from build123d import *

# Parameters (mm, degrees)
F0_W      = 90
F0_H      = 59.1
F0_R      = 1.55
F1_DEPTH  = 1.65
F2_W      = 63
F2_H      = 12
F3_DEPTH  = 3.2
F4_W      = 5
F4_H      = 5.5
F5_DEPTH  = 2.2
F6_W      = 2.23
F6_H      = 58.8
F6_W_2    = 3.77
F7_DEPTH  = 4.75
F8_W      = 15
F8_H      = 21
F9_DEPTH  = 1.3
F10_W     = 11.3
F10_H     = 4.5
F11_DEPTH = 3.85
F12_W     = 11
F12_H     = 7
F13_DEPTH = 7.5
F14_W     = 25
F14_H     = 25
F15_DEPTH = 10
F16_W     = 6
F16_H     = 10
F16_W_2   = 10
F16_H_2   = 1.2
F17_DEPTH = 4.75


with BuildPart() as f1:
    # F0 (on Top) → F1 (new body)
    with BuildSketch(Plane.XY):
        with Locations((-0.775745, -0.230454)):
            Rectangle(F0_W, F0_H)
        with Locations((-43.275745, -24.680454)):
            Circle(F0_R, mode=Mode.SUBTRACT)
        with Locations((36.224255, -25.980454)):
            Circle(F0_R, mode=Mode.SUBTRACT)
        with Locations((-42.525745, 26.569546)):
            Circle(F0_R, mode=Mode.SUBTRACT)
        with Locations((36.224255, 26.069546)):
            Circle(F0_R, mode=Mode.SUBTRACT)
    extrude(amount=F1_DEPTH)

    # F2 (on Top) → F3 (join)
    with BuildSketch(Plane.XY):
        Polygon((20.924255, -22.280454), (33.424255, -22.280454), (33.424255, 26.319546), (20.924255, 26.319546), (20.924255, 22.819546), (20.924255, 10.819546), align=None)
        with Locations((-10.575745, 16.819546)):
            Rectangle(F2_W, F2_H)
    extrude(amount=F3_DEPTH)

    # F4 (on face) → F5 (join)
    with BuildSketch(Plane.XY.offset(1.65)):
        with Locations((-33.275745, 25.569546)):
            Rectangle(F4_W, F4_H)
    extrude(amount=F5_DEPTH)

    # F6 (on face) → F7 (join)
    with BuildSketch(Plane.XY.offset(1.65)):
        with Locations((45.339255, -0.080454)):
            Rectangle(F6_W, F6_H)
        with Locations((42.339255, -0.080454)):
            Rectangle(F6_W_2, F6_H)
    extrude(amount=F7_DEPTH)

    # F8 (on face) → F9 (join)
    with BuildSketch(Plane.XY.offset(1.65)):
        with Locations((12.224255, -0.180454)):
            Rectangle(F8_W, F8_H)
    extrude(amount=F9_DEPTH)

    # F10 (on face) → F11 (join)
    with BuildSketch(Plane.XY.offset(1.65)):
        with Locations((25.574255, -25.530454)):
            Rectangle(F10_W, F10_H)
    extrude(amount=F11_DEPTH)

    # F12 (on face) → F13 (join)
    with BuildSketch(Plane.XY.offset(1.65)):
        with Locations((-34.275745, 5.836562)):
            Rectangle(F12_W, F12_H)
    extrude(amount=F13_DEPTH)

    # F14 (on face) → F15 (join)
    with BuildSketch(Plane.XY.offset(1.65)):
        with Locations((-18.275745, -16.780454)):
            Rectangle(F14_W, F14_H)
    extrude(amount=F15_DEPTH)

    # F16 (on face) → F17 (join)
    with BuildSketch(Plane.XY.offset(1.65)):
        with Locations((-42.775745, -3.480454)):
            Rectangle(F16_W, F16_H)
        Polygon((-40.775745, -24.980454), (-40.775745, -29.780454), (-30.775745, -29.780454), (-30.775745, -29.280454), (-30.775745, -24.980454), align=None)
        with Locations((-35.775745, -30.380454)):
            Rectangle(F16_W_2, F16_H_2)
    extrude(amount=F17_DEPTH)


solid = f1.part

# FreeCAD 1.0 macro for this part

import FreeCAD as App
import Part
import Sketcher

V = App.Vector
Q = App.Units.Quantity

doc = App.newDocument("Part")
params = doc.addObject("Spreadsheet::Sheet", "Params")
for row, (alias, value) in enumerate([
    ("sketch1_diameter", "3.1 mm"),
    ("sketch1_width", "90 mm"),
    ("sketch1_height", "59.1 mm"),
    ("pad1_length", "1.65 mm"),
    ("sketch2_width", "63 mm"),
    ("sketch2_height", "12 mm"),
    ("sketch2_width2", "12.5 mm"),
    ("sketch2_height2", "48.6 mm"),
    ("sketch2_height3", "3.5 mm"),
    ("pad2_length", "3.2 mm"),
    ("sketch3_width", "5 mm"),
    ("sketch3_height", "5.5 mm"),
    ("pad3_length", "2.2 mm"),
    ("sketch4_width", "6 mm"),
    ("sketch4_height", "58.8 mm"),
    ("pad4_length", "4.75 mm"),
    ("sketch5_width", "15 mm"),
    ("sketch5_height", "21 mm"),
    ("pad5_length", "1.3 mm"),
    ("sketch6_width", "11.3 mm"),
    ("sketch6_height", "4.5 mm"),
    ("pad6_length", "3.85 mm"),
    ("sketch7_width", "11 mm"),
    ("sketch7_height", "7 mm"),
    ("pad7_length", "7.5 mm"),
    ("sketch8_width", "25 mm"),
    ("pad8_length", "10 mm"),
    ("sketch9_width", "6 mm"),
    ("sketch9_width2", "10 mm"),
    ("pad9_length", "4.75 mm"),
], start=1):
    params.set(f"A{row}", alias)
    params.set(f"B{row}", "=" + value)
    params.setAlias(f"B{row}", alias)

body = doc.addObject("PartDesign::Body", "Body")

# Sketch on XY plane
sketch1 = doc.addObject("Sketcher::SketchObject", "Sketch")
body.addObject(sketch1)
sketch1.AttachmentSupport = (doc.XY_Plane, [""])
sketch1.MapMode = "FlatFace"
sketch1.addGeometry(Part.LineSegment(V(-45.8, 29.3, 0), V(-45.8, -29.8, 0)), False)
sketch1.addGeometry(Part.LineSegment(V(-45.8, -29.8, 0), V(44.2, -29.8, 0)), False)
sketch1.addGeometry(Part.LineSegment(V(44.2, -29.8, 0), V(44.2, 29.3, 0)), False)
sketch1.addGeometry(Part.LineSegment(V(44.2, 29.3, 0), V(-45.8, 29.3, 0)), False)
sketch1.addGeometry(Part.Circle(V(-43.3, -24.7, 0), V(0, 0, 1), 1.6), False)
sketch1.addGeometry(Part.Circle(V(36.2, -26, 0), V(0, 0, 1), 1.6), False)
sketch1.addGeometry(Part.Circle(V(-42.5, 26.6, 0), V(0, 0, 1), 1.6), False)
sketch1.addGeometry(Part.Circle(V(36.2, 26.1, 0), V(0, 0, 1), 1.6), False)
sketch1.addConstraint(Sketcher.Constraint("Coincident", 0, 2, 1, 1))
sketch1.addConstraint(Sketcher.Constraint("Coincident", 1, 2, 2, 1))
sketch1.addConstraint(Sketcher.Constraint("Coincident", 2, 2, 3, 1))
sketch1.addConstraint(Sketcher.Constraint("Coincident", 3, 2, 0, 1))
sketch1.addConstraint(Sketcher.Constraint("Vertical", 0))
sketch1.addConstraint(Sketcher.Constraint("Horizontal", 1))
sketch1.addConstraint(Sketcher.Constraint("Vertical", 2))
sketch1.addConstraint(Sketcher.Constraint("Horizontal", 3))
sketch1.addConstraint(Sketcher.Constraint("Equal", 4, 5))
sketch1.addConstraint(Sketcher.Constraint("Equal", 5, 6))
sketch1.addConstraint(Sketcher.Constraint("Equal", 6, 7))
sketch1.addConstraint(Sketcher.Constraint("Vertical", 5, 3, 7, 3))
sketch1.addConstraint(Sketcher.Constraint("Diameter", 4, Q("3.1 mm")))
sketch1.addConstraint(Sketcher.Constraint("DistanceX", 1, 1, 1, 2, Q("90 mm")))
sketch1.addConstraint(Sketcher.Constraint("DistanceY", 0, 2, 0, 1, Q("59.1 mm")))
sketch1.addConstraint(Sketcher.Constraint("DistanceX", 0, 2, 5, 3, Q("82 mm")))
sketch1.addConstraint(Sketcher.Constraint("DistanceY", 4, 3, 2, 2, Q("54 mm")))
sketch1.addConstraint(Sketcher.Constraint("DistanceX", 4, 3, 5, 3, Q("79.5 mm")))
sketch1.addConstraint(Sketcher.Constraint("DistanceY", 5, 3, 4, 3, Q("1.3 mm")))
sketch1.addConstraint(Sketcher.Constraint("DistanceY", 7, 3, 6, 3, Q("0.5 mm")))
sketch1.addConstraint(Sketcher.Constraint("DistanceX", 4, 3, 6, 3, Q("0.75 mm")))
sketch1.addConstraint(Sketcher.Constraint("DistanceY", 4, 3, 6, 3, Q("51.25 mm")))
sketch1.addConstraint(Sketcher.Constraint("DistanceX", 4, 3, -1, 1, Q("43.275745 mm")))
sketch1.addConstraint(Sketcher.Constraint("DistanceY", 4, 3, -1, 1, Q("24.680454 mm")))
sketch1.setExpression("Constraints[12]", "Params.sketch1_diameter")
sketch1.setExpression("Constraints[13]", "Params.sketch1_width")
sketch1.setExpression("Constraints[14]", "Params.sketch1_height")
pad1 = doc.addObject("PartDesign::Pad", "Pad")
body.addObject(pad1)
pad1.Profile = sketch1
pad1.setExpression("Length", "Params.pad1_length")

# Sketch on XY plane
sketch2 = doc.addObject("Sketcher::SketchObject", "Sketch001")
body.addObject(sketch2)
sketch2.AttachmentSupport = (doc.XY_Plane, [""])
sketch2.MapMode = "FlatFace"
sketch2.addGeometry(Part.LineSegment(V(20.9, -22.3, 0), V(33.4, -22.3, 0)), False)
sketch2.addGeometry(Part.LineSegment(V(33.4, -22.3, 0), V(33.4, 26.3, 0)), False)
sketch2.addGeometry(Part.LineSegment(V(33.4, 26.3, 0), V(20.9, 26.3, 0)), False)
sketch2.addGeometry(Part.LineSegment(V(20.9, 26.3, 0), V(20.9, 22.8, 0)), False)
sketch2.addGeometry(Part.LineSegment(V(20.9, 22.8, 0), V(-42.1, 22.8, 0)), False)
sketch2.addGeometry(Part.LineSegment(V(-42.1, 22.8, 0), V(-42.1, 10.8, 0)), False)
sketch2.addGeometry(Part.LineSegment(V(-42.1, 10.8, 0), V(20.9, 10.8, 0)), False)
sketch2.addGeometry(Part.LineSegment(V(20.9, 10.8, 0), V(20.9, -22.3, 0)), False)
sketch2.addConstraint(Sketcher.Constraint("Coincident", 0, 2, 1, 1))
sketch2.addConstraint(Sketcher.Constraint("Coincident", 1, 2, 2, 1))
sketch2.addConstraint(Sketcher.Constraint("Coincident", 2, 2, 3, 1))
sketch2.addConstraint(Sketcher.Constraint("Coincident", 3, 2, 4, 1))
sketch2.addConstraint(Sketcher.Constraint("Coincident", 4, 2, 5, 1))
sketch2.addConstraint(Sketcher.Constraint("Coincident", 5, 2, 6, 1))
sketch2.addConstraint(Sketcher.Constraint("Coincident", 6, 2, 7, 1))
sketch2.addConstraint(Sketcher.Constraint("Coincident", 7, 2, 0, 1))
sketch2.addConstraint(Sketcher.Constraint("Horizontal", 0))
sketch2.addConstraint(Sketcher.Constraint("Vertical", 1))
sketch2.addConstraint(Sketcher.Constraint("Horizontal", 2))
sketch2.addConstraint(Sketcher.Constraint("Vertical", 3))
sketch2.addConstraint(Sketcher.Constraint("Horizontal", 4))
sketch2.addConstraint(Sketcher.Constraint("Vertical", 5))
sketch2.addConstraint(Sketcher.Constraint("Horizontal", 6))
sketch2.addConstraint(Sketcher.Constraint("Vertical", 7))
sketch2.addConstraint(Sketcher.Constraint("Vertical", 3, 2, 6, 2))
sketch2.addConstraint(Sketcher.Constraint("DistanceX", 4, 2, 4, 1, Q("63 mm")))
sketch2.addConstraint(Sketcher.Constraint("DistanceY", 5, 2, 5, 1, Q("12 mm")))
sketch2.addConstraint(Sketcher.Constraint("DistanceX", 0, 1, 0, 2, Q("12.5 mm")))
sketch2.addConstraint(Sketcher.Constraint("DistanceY", 1, 1, 1, 2, Q("48.6 mm")))
sketch2.addConstraint(Sketcher.Constraint("DistanceY", 3, 2, 3, 1, Q("3.5 mm")))
sketch2.addConstraint(Sketcher.Constraint("DistanceX", -1, 1, 0, 2, Q("33.424255 mm")))
sketch2.addConstraint(Sketcher.Constraint("DistanceY", 0, 2, -1, 1, Q("22.280454 mm")))
sketch2.setExpression("Constraints[17]", "Params.sketch2_width")
sketch2.setExpression("Constraints[18]", "Params.sketch2_height")
sketch2.setExpression("Constraints[19]", "Params.sketch2_width2")
sketch2.setExpression("Constraints[20]", "Params.sketch2_height2")
sketch2.setExpression("Constraints[21]", "Params.sketch2_height3")
pad2 = doc.addObject("PartDesign::Pad", "Pad001")
body.addObject(pad2)
pad2.Profile = sketch2
pad2.setExpression("Length", "Params.pad2_length")

# Sketch on XY plane
sketch3 = doc.addObject("Sketcher::SketchObject", "Sketch002")
body.addObject(sketch3)
sketch3.AttachmentSupport = (doc.XY_Plane, [""])
sketch3.MapMode = "FlatFace"
sketch3.AttachmentOffset = App.Placement(V(0, 0, 1.65), App.Rotation())
sketch3.addGeometry(Part.LineSegment(V(-36, 28, 0), V(-36, 23, 0)), False)
sketch3.addGeometry(Part.LineSegment(V(-36, 23, 0), V(-31, 23, 0)), False)
sketch3.addGeometry(Part.LineSegment(V(-31, 23, 0), V(-31, 28, 0)), False)
sketch3.addGeometry(Part.LineSegment(V(-31, 28, 0), V(-36, 28, 0)), False)
sketch3.addConstraint(Sketcher.Constraint("Coincident", 0, 2, 1, 1))
sketch3.addConstraint(Sketcher.Constraint("Coincident", 1, 2, 2, 1))
sketch3.addConstraint(Sketcher.Constraint("Coincident", 2, 2, 3, 1))
sketch3.addConstraint(Sketcher.Constraint("Coincident", 3, 2, 0, 1))
sketch3.addConstraint(Sketcher.Constraint("Vertical", 0))
sketch3.addConstraint(Sketcher.Constraint("Horizontal", 1))
sketch3.addConstraint(Sketcher.Constraint("Vertical", 2))
sketch3.addConstraint(Sketcher.Constraint("Horizontal", 3))
sketch3.addConstraint(Sketcher.Constraint("DistanceX", 1, 1, 1, 2, Q("5 mm")))
sketch3.addConstraint(Sketcher.Constraint("DistanceY", 0, 2, 0, 1, Q("5.5 mm")))
sketch3.addConstraint(Sketcher.Constraint("DistanceX", 0, 2, -1, 1, Q("35.775745 mm")))
sketch3.addConstraint(Sketcher.Constraint("DistanceY", -1, 1, 0, 2, Q("22.819546 mm")))
sketch3.setExpression("Constraints[8]", "Params.sketch3_width")
sketch3.setExpression("Constraints[9]", "Params.sketch3_height")
pad3 = doc.addObject("PartDesign::Pad", "Pad002")
body.addObject(pad3)
pad3.Profile = sketch3
pad3.setExpression("Length", "Params.pad3_length")

# Sketch on XY plane
sketch4 = doc.addObject("Sketcher::SketchObject", "Sketch003")
body.addObject(sketch4)
sketch4.AttachmentSupport = (doc.XY_Plane, [""])
sketch4.MapMode = "FlatFace"
sketch4.AttachmentOffset = App.Placement(V(0, 0, 1.65), App.Rotation())
sketch4.addGeometry(Part.LineSegment(V(46, -29, 0), V(46, 29, 0)), False)
sketch4.addGeometry(Part.LineSegment(V(46, 29, 0), V(40, 29, 0)), False)
sketch4.addGeometry(Part.LineSegment(V(40, 29, 0), V(40, -29, 0)), False)
sketch4.addGeometry(Part.LineSegment(V(40, -29, 0), V(46, -29, 0)), False)
sketch4.addConstraint(Sketcher.Constraint("Coincident", 0, 2, 1, 1))
sketch4.addConstraint(Sketcher.Constraint("Coincident", 1, 2, 2, 1))
sketch4.addConstraint(Sketcher.Constraint("Coincident", 2, 2, 3, 1))
sketch4.addConstraint(Sketcher.Constraint("Coincident", 3, 2, 0, 1))
sketch4.addConstraint(Sketcher.Constraint("Vertical", 0))
sketch4.addConstraint(Sketcher.Constraint("Horizontal", 1))
sketch4.addConstraint(Sketcher.Constraint("Vertical", 2))
sketch4.addConstraint(Sketcher.Constraint("Horizontal", 3))
sketch4.addConstraint(Sketcher.Constraint("DistanceX", 1, 2, 1, 1, Q("6 mm")))
sketch4.addConstraint(Sketcher.Constraint("DistanceY", 0, 1, 0, 2, Q("58.8 mm")))
sketch4.addConstraint(Sketcher.Constraint("DistanceX", -1, 1, 0, 2, Q("46.454255 mm")))
sketch4.addConstraint(Sketcher.Constraint("DistanceY", -1, 1, 0, 2, Q("29.319546 mm")))
sketch4.setExpression("Constraints[8]", "Params.sketch4_width")
sketch4.setExpression("Constraints[9]", "Params.sketch4_height")
pad4 = doc.addObject("PartDesign::Pad", "Pad003")
body.addObject(pad4)
pad4.Profile = sketch4
pad4.setExpression("Length", "Params.pad4_length")

# Sketch on XY plane
sketch5 = doc.addObject("Sketcher::SketchObject", "Sketch004")
body.addObject(sketch5)
sketch5.AttachmentSupport = (doc.XY_Plane, [""])
sketch5.MapMode = "FlatFace"
sketch5.AttachmentOffset = App.Placement(V(0, 0, 1.65), App.Rotation())
sketch5.addGeometry(Part.LineSegment(V(5, 10, 0), V(5, -11, 0)), False)
sketch5.addGeometry(Part.LineSegment(V(5, -11, 0), V(20, -11, 0)), False)
sketch5.addGeometry(Part.LineSegment(V(20, -11, 0), V(20, 10, 0)), False)
sketch5.addGeometry(Part.LineSegment(V(20, 10, 0), V(5, 10, 0)), False)
sketch5.addConstraint(Sketcher.Constraint("Coincident", 0, 2, 1, 1))
sketch5.addConstraint(Sketcher.Constraint("Coincident", 1, 2, 2, 1))
sketch5.addConstraint(Sketcher.Constraint("Coincident", 2, 2, 3, 1))
sketch5.addConstraint(Sketcher.Constraint("Coincident", 3, 2, 0, 1))
sketch5.addConstraint(Sketcher.Constraint("Vertical", 0))
sketch5.addConstraint(Sketcher.Constraint("Horizontal", 1))
sketch5.addConstraint(Sketcher.Constraint("Vertical", 2))
sketch5.addConstraint(Sketcher.Constraint("Horizontal", 3))
sketch5.addConstraint(Sketcher.Constraint("DistanceX", 1, 1, 1, 2, Q("15 mm")))
sketch5.addConstraint(Sketcher.Constraint("DistanceY", 0, 2, 0, 1, Q("21 mm")))
sketch5.addConstraint(Sketcher.Constraint("DistanceX", -1, 1, 0, 2, Q("4.724255 mm")))
sketch5.addConstraint(Sketcher.Constraint("DistanceY", 0, 2, -1, 1, Q("10.680454 mm")))
sketch5.setExpression("Constraints[8]", "Params.sketch5_width")
sketch5.setExpression("Constraints[9]", "Params.sketch5_height")
pad5 = doc.addObject("PartDesign::Pad", "Pad004")
body.addObject(pad5)
pad5.Profile = sketch5
pad5.setExpression("Length", "Params.pad5_length")

# Sketch on XY plane
sketch6 = doc.addObject("Sketcher::SketchObject", "Sketch005")
body.addObject(sketch6)
sketch6.AttachmentSupport = (doc.XY_Plane, [""])
sketch6.MapMode = "FlatFace"
sketch6.AttachmentOffset = App.Placement(V(0, 0, 1.65), App.Rotation())
sketch6.addGeometry(Part.LineSegment(V(19.9, -23.3, 0), V(19.9, -27.8, 0)), False)
sketch6.addGeometry(Part.LineSegment(V(19.9, -27.8, 0), V(31.2, -27.8, 0)), False)
sketch6.addGeometry(Part.LineSegment(V(31.2, -27.8, 0), V(31.2, -23.3, 0)), False)
sketch6.addGeometry(Part.LineSegment(V(31.2, -23.3, 0), V(19.9, -23.3, 0)), False)
sketch6.addConstraint(Sketcher.Constraint("Coincident", 0, 2, 1, 1))
sketch6.addConstraint(Sketcher.Constraint("Coincident", 1, 2, 2, 1))
sketch6.addConstraint(Sketcher.Constraint("Coincident", 2, 2, 3, 1))
sketch6.addConstraint(Sketcher.Constraint("Coincident", 3, 2, 0, 1))
sketch6.addConstraint(Sketcher.Constraint("Vertical", 0))
sketch6.addConstraint(Sketcher.Constraint("Horizontal", 1))
sketch6.addConstraint(Sketcher.Constraint("Vertical", 2))
sketch6.addConstraint(Sketcher.Constraint("Horizontal", 3))
sketch6.addConstraint(Sketcher.Constraint("DistanceX", 1, 1, 1, 2, Q("11.3 mm")))
sketch6.addConstraint(Sketcher.Constraint("DistanceY", 0, 2, 0, 1, Q("4.5 mm")))
sketch6.addConstraint(Sketcher.Constraint("DistanceX", -1, 1, 0, 2, Q("19.924255 mm")))
sketch6.addConstraint(Sketcher.Constraint("DistanceY", 0, 2, -1, 1, Q("27.780454 mm")))
sketch6.setExpression("Constraints[8]", "Params.sketch6_width")
sketch6.setExpression("Constraints[9]", "Params.sketch6_height")
pad6 = doc.addObject("PartDesign::Pad", "Pad005")
body.addObject(pad6)
pad6.Profile = sketch6
pad6.setExpression("Length", "Params.pad6_length")

# Sketch on XY plane
sketch7 = doc.addObject("Sketcher::SketchObject", "Sketch006")
body.addObject(sketch7)
sketch7.AttachmentSupport = (doc.XY_Plane, [""])
sketch7.MapMode = "FlatFace"
sketch7.AttachmentOffset = App.Placement(V(0, 0, 1.65), App.Rotation())
sketch7.addGeometry(Part.LineSegment(V(-40, 9, 0), V(-40, 2, 0)), False)
sketch7.addGeometry(Part.LineSegment(V(-40, 2, 0), V(-29, 2, 0)), False)
sketch7.addGeometry(Part.LineSegment(V(-29, 2, 0), V(-29, 9, 0)), False)
sketch7.addGeometry(Part.LineSegment(V(-29, 9, 0), V(-40, 9, 0)), False)
sketch7.addConstraint(Sketcher.Constraint("Coincident", 0, 2, 1, 1))
sketch7.addConstraint(Sketcher.Constraint("Coincident", 1, 2, 2, 1))
sketch7.addConstraint(Sketcher.Constraint("Coincident", 2, 2, 3, 1))
sketch7.addConstraint(Sketcher.Constraint("Coincident", 3, 2, 0, 1))
sketch7.addConstraint(Sketcher.Constraint("Vertical", 0))
sketch7.addConstraint(Sketcher.Constraint("Horizontal", 1))
sketch7.addConstraint(Sketcher.Constraint("Vertical", 2))
sketch7.addConstraint(Sketcher.Constraint("Horizontal", 3))
sketch7.addConstraint(Sketcher.Constraint("DistanceX", 1, 1, 1, 2, Q("11 mm")))
sketch7.addConstraint(Sketcher.Constraint("DistanceY", 0, 2, 0, 1, Q("7 mm")))
sketch7.addConstraint(Sketcher.Constraint("DistanceY", -1, 1, 0, 2, Q("2.336562 mm")))
sketch7.addConstraint(Sketcher.Constraint("DistanceX", 0, 2, -1, 1, Q("39.775745 mm")))
sketch7.setExpression("Constraints[8]", "Params.sketch7_width")
sketch7.setExpression("Constraints[9]", "Params.sketch7_height")
pad7 = doc.addObject("PartDesign::Pad", "Pad006")
body.addObject(pad7)
pad7.Profile = sketch7
pad7.setExpression("Length", "Params.pad7_length")

# Sketch on XY plane
sketch8 = doc.addObject("Sketcher::SketchObject", "Sketch007")
body.addObject(sketch8)
sketch8.AttachmentSupport = (doc.XY_Plane, [""])
sketch8.MapMode = "FlatFace"
sketch8.AttachmentOffset = App.Placement(V(0, 0, 1.65), App.Rotation())
sketch8.addGeometry(Part.LineSegment(V(-31, -4, 0), V(-31, -29, 0)), False)
sketch8.addGeometry(Part.LineSegment(V(-31, -29, 0), V(-6, -29, 0)), False)
sketch8.addGeometry(Part.LineSegment(V(-6, -29, 0), V(-6, -4, 0)), False)
sketch8.addGeometry(Part.LineSegment(V(-6, -4, 0), V(-31, -4, 0)), False)
sketch8.addConstraint(Sketcher.Constraint("Coincident", 0, 2, 1, 1))
sketch8.addConstraint(Sketcher.Constraint("Coincident", 1, 2, 2, 1))
sketch8.addConstraint(Sketcher.Constraint("Coincident", 2, 2, 3, 1))
sketch8.addConstraint(Sketcher.Constraint("Coincident", 3, 2, 0, 1))
sketch8.addConstraint(Sketcher.Constraint("Vertical", 0))
sketch8.addConstraint(Sketcher.Constraint("Horizontal", 1))
sketch8.addConstraint(Sketcher.Constraint("Vertical", 2))
sketch8.addConstraint(Sketcher.Constraint("Horizontal", 3))
sketch8.addConstraint(Sketcher.Constraint("Equal", 3, 0))
sketch8.addConstraint(Sketcher.Constraint("DistanceX", 1, 1, 1, 2, Q("25 mm")))
sketch8.addConstraint(Sketcher.Constraint("DistanceX", 0, 2, -1, 1, Q("30.775745 mm")))
sketch8.addConstraint(Sketcher.Constraint("DistanceY", 0, 2, -1, 1, Q("29.280454 mm")))
sketch8.setExpression("Constraints[9]", "Params.sketch8_width")
pad8 = doc.addObject("PartDesign::Pad", "Pad007")
body.addObject(pad8)
pad8.Profile = sketch8
pad8.setExpression("Length", "Params.pad8_length")

# Sketch on XY plane
sketch9 = doc.addObject("Sketcher::SketchObject", "Sketch008")
body.addObject(sketch9)
sketch9.AttachmentSupport = (doc.XY_Plane, [""])
sketch9.MapMode = "FlatFace"
sketch9.AttachmentOffset = App.Placement(V(0, 0, 1.65), App.Rotation())
sketch9.addGeometry(Part.LineSegment(V(-46, 2, 0), V(-46, -8, 0)), False)
sketch9.addGeometry(Part.LineSegment(V(-46, -8, 0), V(-40, -8, 0)), False)
sketch9.addGeometry(Part.LineSegment(V(-40, -8, 0), V(-40, 2, 0)), False)
sketch9.addGeometry(Part.LineSegment(V(-40, 2, 0), V(-46, 2, 0)), False)
sketch9.addGeometry(Part.LineSegment(V(-41, -25, 0), V(-41, -31, 0)), False)
sketch9.addGeometry(Part.LineSegment(V(-41, -31, 0), V(-31, -31, 0)), False)
sketch9.addGeometry(Part.LineSegment(V(-31, -31, 0), V(-31, -25, 0)), False)
sketch9.addGeometry(Part.LineSegment(V(-31, -25, 0), V(-41, -25, 0)), False)
sketch9.addConstraint(Sketcher.Constraint("Coincident", 0, 2, 1, 1))
sketch9.addConstraint(Sketcher.Constraint("Coincident", 1, 2, 2, 1))
sketch9.addConstraint(Sketcher.Constraint("Coincident", 2, 2, 3, 1))
sketch9.addConstraint(Sketcher.Constraint("Coincident", 3, 2, 0, 1))
sketch9.addConstraint(Sketcher.Constraint("Coincident", 4, 2, 5, 1))
sketch9.addConstraint(Sketcher.Constraint("Coincident", 5, 2, 6, 1))
sketch9.addConstraint(Sketcher.Constraint("Coincident", 6, 2, 7, 1))
sketch9.addConstraint(Sketcher.Constraint("Coincident", 7, 2, 4, 1))
sketch9.addConstraint(Sketcher.Constraint("Vertical", 0))
sketch9.addConstraint(Sketcher.Constraint("Horizontal", 1))
sketch9.addConstraint(Sketcher.Constraint("Vertical", 2))
sketch9.addConstraint(Sketcher.Constraint("Horizontal", 3))
sketch9.addConstraint(Sketcher.Constraint("Vertical", 4))
sketch9.addConstraint(Sketcher.Constraint("Horizontal", 5))
sketch9.addConstraint(Sketcher.Constraint("Vertical", 6))
sketch9.addConstraint(Sketcher.Constraint("Horizontal", 7))
sketch9.addConstraint(Sketcher.Constraint("Equal", 7, 0))
sketch9.addConstraint(Sketcher.Constraint("Equal", 3, 4))
sketch9.addConstraint(Sketcher.Constraint("DistanceX", 1, 1, 1, 2, Q("6 mm")))
sketch9.addConstraint(Sketcher.Constraint("DistanceX", 5, 1, 5, 2, Q("10 mm")))
sketch9.addConstraint(Sketcher.Constraint("DistanceX", 4, 2, 1, 2, Q("1 mm")))
sketch9.addConstraint(Sketcher.Constraint("DistanceY", 4, 2, 1, 2, Q("22.5 mm")))
sketch9.addConstraint(Sketcher.Constraint("DistanceX", 0, 2, -1, 1, Q("45.775745 mm")))
sketch9.addConstraint(Sketcher.Constraint("DistanceY", 0, 2, -1, 1, Q("8.480454 mm")))
sketch9.setExpression("Constraints[18]", "Params.sketch9_width")
sketch9.setExpression("Constraints[19]", "Params.sketch9_width2")
pad9 = doc.addObject("PartDesign::Pad", "Pad008")
body.addObject(pad9)
pad9.Profile = sketch9
pad9.setExpression("Length", "Params.pad9_length")

doc.recompute()
